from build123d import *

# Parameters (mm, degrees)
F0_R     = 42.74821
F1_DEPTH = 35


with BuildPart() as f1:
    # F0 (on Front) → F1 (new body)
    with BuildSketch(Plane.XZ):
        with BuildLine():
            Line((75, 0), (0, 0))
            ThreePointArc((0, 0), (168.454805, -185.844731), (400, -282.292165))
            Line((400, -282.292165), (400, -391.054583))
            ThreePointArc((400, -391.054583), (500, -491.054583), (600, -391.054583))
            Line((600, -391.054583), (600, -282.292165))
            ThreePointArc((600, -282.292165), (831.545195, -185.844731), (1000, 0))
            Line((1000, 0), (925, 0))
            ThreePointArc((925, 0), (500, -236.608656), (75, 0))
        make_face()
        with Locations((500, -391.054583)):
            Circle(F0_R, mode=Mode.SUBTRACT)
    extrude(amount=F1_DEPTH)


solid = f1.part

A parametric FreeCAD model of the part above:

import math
import FreeCAD as App
import Part
import Sketcher

V = App.Vector
Q = App.Units.Quantity

doc = App.newDocument("Part")
body = doc.addObject("PartDesign::Body", "Body")

# Sketch on XZ plane
sketch1 = body.newObject("Sketcher::SketchObject", "Sketch")
sketch1.AttachmentSupport = (doc.getObject("XZ_Plane"), [""])
sketch1.MapMode = "FlatFace"
sketch1.addGeometry(Part.LineSegment(V(75, 0, 0), V(0, 0, 0)), False)
sketch1.addGeometry(Part.ArcOfCircle(Part.Circle(V(500, 284, 0), V(0, 0, 1), 575), math.radians(-150), math.radians(-100)), False)
sketch1.addGeometry(Part.LineSegment(V(400, -282, 0), V(400, -391, 0)), False)
sketch1.addGeometry(Part.ArcOfCircle(Part.Circle(V(500, -391, 0), V(0, 0, 1), 100), math.radians(180), math.radians(360)), False)
sketch1.addGeometry(Part.LineSegment(V(600, -391, 0), V(600, -282, 0)), False)
sketch1.addGeometry(Part.ArcOfCircle(Part.Circle(V(500, 284, 0), V(0, 0, 1), 575), math.radians(-80), math.radians(-30)), False)
sketch1.addGeometry(Part.LineSegment(V(1000, 0, 0), V(925, 0, 0)), False)
sketch1.addGeometry(Part.ArcOfCircle(Part.Circle(V(500, 263, 0), V(0, 0, 1), 500), math.radians(-148), math.radians(-32)), False)
sketch1.addGeometry(Part.Circle(V(500, -391, 0), V(0, 0, 1), 43), False)
sketch1.addConstraint(Sketcher.Constraint("Coincident", 0, 2, 1, 1))
sketch1.addConstraint(Sketcher.Constraint("Coincident", 1, 2, 2, 1))
sketch1.addConstraint(Sketcher.Constraint("Tangent", 2, 2, 3, 1))
sketch1.addConstraint(Sketcher.Constraint("Tangent", 3, 2, 4, 1))
sketch1.addConstraint(Sketcher.Constraint("Coincident", 4, 2, 5, 1))
sketch1.addConstraint(Sketcher.Constraint("Coincident", 5, 2, 6, 1))
sketch1.addConstraint(Sketcher.Constraint("Coincident", 6, 2, 7, 2))
sketch1.addConstraint(Sketcher.Constraint("Coincident", 7, 1, 0, 1))
sketch1.addConstraint(Sketcher.Constraint("Horizontal", 0))
sketch1.addConstraint(Sketcher.Constraint("Vertical", 2))
sketch1.addConstraint(Sketcher.Constraint("Vertical", 4))
sketch1.addConstraint(Sketcher.Constraint("Horizontal", 6))
sketch1.addConstraint(Sketcher.Constraint("Coincident", 0, 2, -1, 1))
sketch1.addConstraint(Sketcher.Constraint("Coincident", 5, 3, 1, 3))
sketch1.addConstraint(Sketcher.Constraint("Coincident", 8, 3, 3, 3))
sketch1.addConstraint(Sketcher.Constraint("Equal", 1, 5))
sketch1.addConstraint(Sketcher.Constraint("PointOnObject", 6, 2, -1))
sketch1.addConstraint(Sketcher.Constraint("Vertical", 1, 3, 3, 3))
sketch1.addConstraint(Sketcher.Constraint("Vertical", 5, 3, 7, 3))
sketch1.addConstraint(Sketcher.Constraint("Radius", 1, Q("575 mm")))
sketch1.addConstraint(Sketcher.Constraint("Radius", 3, Q("100 mm")))
sketch1.addConstraint(Sketcher.Constraint("Radius", 7, Q("500 mm")))
sketch1.addConstraint(Sketcher.Constraint("DistanceX", 0, 2, 0, 1, Q("75 mm")))
sketch1.addConstraint(Sketcher.Constraint("DistanceX", -1, 1, 1, 3, Q("500 mm")))
sketch1.addConstraint(Sketcher.Constraint("DistanceY", 3, 3, 1, 3, Q("675.000001 mm")))
sketch1.addConstraint(Sketcher.Constraint("Diameter", 8, Q("85.49642 mm")))
pad1 = body.newObject("PartDesign::Pad", "Pad")
pad1.Profile = sketch1
pad1.Length = 35

doc.recompute()
